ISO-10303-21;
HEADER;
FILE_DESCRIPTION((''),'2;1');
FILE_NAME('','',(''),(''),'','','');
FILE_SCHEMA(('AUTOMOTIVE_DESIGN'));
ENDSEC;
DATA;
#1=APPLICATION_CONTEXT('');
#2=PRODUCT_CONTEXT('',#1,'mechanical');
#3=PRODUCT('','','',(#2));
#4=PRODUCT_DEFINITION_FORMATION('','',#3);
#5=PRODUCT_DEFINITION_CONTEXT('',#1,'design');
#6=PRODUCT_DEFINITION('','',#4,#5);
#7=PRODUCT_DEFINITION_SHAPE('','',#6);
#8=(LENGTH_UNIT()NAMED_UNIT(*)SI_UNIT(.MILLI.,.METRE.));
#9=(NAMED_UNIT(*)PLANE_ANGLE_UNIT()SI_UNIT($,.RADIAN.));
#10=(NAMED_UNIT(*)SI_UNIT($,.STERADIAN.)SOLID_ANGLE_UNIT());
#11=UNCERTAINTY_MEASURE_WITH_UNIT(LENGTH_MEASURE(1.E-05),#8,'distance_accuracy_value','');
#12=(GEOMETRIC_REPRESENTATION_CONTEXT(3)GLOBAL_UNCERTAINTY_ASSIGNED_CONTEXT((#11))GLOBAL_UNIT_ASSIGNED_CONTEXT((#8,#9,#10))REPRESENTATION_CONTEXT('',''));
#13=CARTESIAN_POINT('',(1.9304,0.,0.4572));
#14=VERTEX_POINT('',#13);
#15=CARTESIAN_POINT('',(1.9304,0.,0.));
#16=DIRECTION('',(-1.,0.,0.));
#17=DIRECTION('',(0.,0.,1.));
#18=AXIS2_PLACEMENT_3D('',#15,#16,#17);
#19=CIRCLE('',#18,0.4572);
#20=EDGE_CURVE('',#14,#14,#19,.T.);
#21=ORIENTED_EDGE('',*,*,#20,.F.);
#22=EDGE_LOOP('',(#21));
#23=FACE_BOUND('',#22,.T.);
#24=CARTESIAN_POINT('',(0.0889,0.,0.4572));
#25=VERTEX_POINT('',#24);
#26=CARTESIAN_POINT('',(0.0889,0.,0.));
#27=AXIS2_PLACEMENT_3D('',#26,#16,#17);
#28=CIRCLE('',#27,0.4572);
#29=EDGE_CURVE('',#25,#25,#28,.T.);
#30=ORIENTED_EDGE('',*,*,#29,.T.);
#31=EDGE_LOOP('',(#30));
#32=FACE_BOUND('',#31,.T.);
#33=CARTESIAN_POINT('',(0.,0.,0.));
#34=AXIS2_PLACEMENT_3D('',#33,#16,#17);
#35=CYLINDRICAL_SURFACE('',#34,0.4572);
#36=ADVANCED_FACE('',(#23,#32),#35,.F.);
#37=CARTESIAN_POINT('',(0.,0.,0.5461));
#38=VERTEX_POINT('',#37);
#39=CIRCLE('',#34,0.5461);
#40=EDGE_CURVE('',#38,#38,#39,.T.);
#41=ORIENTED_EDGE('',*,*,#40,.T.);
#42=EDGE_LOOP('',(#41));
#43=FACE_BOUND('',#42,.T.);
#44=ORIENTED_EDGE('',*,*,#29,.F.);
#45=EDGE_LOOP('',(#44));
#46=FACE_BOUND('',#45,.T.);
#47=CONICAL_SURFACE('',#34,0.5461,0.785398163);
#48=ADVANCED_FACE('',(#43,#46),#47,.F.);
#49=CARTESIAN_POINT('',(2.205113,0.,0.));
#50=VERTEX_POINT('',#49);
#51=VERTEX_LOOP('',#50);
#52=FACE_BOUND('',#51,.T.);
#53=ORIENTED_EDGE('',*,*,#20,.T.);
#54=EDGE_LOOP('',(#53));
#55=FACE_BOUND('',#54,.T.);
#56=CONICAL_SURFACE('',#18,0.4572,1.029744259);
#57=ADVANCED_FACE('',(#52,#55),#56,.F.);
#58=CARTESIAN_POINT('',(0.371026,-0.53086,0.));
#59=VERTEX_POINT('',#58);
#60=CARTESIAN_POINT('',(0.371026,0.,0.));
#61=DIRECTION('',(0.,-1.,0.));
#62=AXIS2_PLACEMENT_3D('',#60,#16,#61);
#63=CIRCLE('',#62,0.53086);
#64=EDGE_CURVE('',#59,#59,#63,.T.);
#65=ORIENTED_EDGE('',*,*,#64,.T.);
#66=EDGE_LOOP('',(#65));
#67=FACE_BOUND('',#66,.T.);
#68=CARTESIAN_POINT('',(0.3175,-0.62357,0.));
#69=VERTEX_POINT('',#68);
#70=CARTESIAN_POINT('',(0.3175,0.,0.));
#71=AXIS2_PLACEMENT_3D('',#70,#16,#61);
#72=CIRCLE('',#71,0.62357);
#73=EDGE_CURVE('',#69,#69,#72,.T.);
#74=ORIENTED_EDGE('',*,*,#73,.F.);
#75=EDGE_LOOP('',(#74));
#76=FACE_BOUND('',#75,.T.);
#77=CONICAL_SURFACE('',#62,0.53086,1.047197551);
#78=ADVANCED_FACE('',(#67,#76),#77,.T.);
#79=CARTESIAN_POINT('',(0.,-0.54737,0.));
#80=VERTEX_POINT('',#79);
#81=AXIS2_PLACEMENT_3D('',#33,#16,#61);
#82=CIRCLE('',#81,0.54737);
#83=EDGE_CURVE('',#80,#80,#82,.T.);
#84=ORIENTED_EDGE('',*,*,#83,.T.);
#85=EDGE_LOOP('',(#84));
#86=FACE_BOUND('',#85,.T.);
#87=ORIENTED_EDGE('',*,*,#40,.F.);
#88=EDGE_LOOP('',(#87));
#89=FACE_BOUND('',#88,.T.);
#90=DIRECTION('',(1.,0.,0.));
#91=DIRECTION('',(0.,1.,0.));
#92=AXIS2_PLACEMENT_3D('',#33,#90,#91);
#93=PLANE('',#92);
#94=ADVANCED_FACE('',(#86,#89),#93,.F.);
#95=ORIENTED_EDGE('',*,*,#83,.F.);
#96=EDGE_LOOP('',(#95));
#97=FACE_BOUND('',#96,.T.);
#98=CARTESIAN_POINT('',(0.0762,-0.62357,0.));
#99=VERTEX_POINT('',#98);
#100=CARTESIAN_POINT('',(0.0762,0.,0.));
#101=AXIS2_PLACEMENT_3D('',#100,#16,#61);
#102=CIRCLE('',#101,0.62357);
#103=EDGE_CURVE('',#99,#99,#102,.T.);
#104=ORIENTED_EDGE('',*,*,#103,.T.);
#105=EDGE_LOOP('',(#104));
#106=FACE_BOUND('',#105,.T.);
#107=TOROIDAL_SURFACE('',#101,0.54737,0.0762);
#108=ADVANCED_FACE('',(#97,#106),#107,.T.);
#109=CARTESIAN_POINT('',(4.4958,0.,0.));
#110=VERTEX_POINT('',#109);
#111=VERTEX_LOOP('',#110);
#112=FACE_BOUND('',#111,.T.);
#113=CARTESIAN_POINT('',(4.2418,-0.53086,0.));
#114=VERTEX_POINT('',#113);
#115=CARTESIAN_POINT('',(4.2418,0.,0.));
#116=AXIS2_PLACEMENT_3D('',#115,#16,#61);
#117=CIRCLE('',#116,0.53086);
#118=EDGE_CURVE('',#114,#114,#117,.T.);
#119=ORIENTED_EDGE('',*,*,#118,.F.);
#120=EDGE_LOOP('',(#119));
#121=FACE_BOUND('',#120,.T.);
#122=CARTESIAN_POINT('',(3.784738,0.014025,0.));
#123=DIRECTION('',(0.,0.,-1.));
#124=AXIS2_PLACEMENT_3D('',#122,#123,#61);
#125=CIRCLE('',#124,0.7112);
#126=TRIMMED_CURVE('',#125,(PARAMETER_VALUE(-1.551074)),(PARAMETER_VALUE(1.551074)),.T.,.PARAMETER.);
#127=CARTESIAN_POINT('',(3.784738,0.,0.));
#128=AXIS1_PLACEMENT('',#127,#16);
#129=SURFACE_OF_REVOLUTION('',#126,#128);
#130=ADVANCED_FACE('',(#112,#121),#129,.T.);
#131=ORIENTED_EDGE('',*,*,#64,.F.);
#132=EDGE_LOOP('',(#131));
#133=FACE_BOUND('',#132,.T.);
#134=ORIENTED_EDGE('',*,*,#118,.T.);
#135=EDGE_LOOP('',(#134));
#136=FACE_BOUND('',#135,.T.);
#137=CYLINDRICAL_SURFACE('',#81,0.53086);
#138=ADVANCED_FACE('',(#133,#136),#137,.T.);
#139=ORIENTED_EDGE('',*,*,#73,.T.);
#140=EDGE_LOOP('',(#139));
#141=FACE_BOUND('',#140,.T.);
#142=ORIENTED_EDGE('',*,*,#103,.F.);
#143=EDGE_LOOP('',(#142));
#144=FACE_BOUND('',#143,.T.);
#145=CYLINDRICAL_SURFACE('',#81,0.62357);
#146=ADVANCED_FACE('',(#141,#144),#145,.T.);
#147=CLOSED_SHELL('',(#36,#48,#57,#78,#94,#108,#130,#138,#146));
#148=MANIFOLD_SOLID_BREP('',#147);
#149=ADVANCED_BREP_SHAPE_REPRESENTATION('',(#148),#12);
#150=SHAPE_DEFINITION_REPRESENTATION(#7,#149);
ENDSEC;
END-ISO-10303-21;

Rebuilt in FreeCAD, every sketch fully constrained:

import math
import FreeCAD as App
import Part
import Sketcher
Q = App.Units.Quantity

doc = App.newDocument("Part")
params = doc.addObject("Spreadsheet::Sheet", "Params")
for row, (alias, value) in enumerate([
    ("sketch1_radius", "0.028 in"),
    ("sketch1_radius2", "0.003 in"),
    ("sketch1_width", "0.177 in"),
    ("revolution_angle", "360 deg"),
    ("sketch2_diameter", "0.036 in"),
    ("hole_diameter", "0.036 in"),
    ("hole_depth", "0.076 in"),
    ("hole_csink_diameter", "0.043 in"),
], start=1):
    params.set(f"A{row}", alias)
    params.set(f"B{row}", "=" + value)
    params.setAlias(f"B{row}", alias)

body = doc.addObject("PartDesign::Body", "Body")

sketch1 = body.newObject("Sketcher::SketchObject", "Sketch")
sketch1.AttachmentSupport = (doc.getObject("XY_Plane"), [""])
sketch1.MapMode = "FlatFace"
sketch1.addGeometry([
    Part.LineSegment(App.Vector(0, 0.54737, 0), App.Vector(0, 0, 0)),
    Part.LineSegment(App.Vector(0, 0, 0), App.Vector(4.4958, 0, 0)),
    Part.ArcOfCircle(Part.Circle(App.Vector(3.784738, -0.014025, 0), App.Vector(0, 0, 1), 0.7112), math.radians(1.129986), math.radians(50.009344)),
    Part.LineSegment(App.Vector(4.2418, 0.53086, 0), App.Vector(0.371026, 0.53086, 0)),
    Part.LineSegment(App.Vector(0.371026, 0.53086, 0), App.Vector(0.3175, 0.62357, 0)),
    Part.LineSegment(App.Vector(0.3175, 0.62357, 0), App.Vector(0.0762, 0.62357, 0)),
    Part.ArcOfCircle(Part.Circle(App.Vector(0.0762, 0.54737, 0), App.Vector(0, 0, 1), 0.0762), math.radians(89.999999), math.radians(180.000001)),
], False)
sketch1.addConstraint([
    Sketcher.Constraint("Coincident", 0, 2, 1, 1),
    Sketcher.Constraint("Coincident", 1, 2, 2, 1),
    Sketcher.Constraint("Coincident", 2, 2, 3, 1),
    Sketcher.Constraint("Coincident", 3, 2, 4, 1),
    Sketcher.Constraint("Coincident", 4, 2, 5, 1),
    Sketcher.Constraint("Tangent", 5, 2, 6, 1),
    Sketcher.Constraint("Tangent", 6, 2, 0, 1),
    Sketcher.Constraint("Vertical", 0),
    Sketcher.Constraint("Horizontal", 1),
    Sketcher.Constraint("Horizontal", 3),
    Sketcher.Constraint("Horizontal", 5),
    Sketcher.Constraint("Coincident", 0, 2, -1, 1),
    Sketcher.Constraint("Angle", 4, Q("120 deg")),
    Sketcher.Constraint("Radius", 2, Q("0.028 in")),
    Sketcher.Constraint("Radius", 6, Q("0.003 in")),
    Sketcher.Constraint("DistanceX", 1, 1, 1, 2, Q("0.177 in")),
    Sketcher.Constraint("DistanceX", 2, 2, 1, 2, Q("0.01 in")),
    Sketcher.Constraint("DistanceX", 5, 2, 5, 1, Q("0.0095 in")),
    Sketcher.Constraint("DistanceY", -1, 1, 2, 2, Q("0.0209 in")),
    Sketcher.Constraint("DistanceY", 0, 2, 0, 1, Q("0.54737 mm")),
])
sketch1.setExpression("Constraints[13]", "Params.sketch1_radius")
sketch1.setExpression("Constraints[14]", "Params.sketch1_radius2")
sketch1.setExpression("Constraints[15]", "Params.sketch1_width")
revolution = body.newObject("PartDesign::Revolution", "Revolution")
revolution.Profile = sketch1
revolution.ReferenceAxis = (sketch1, ["H_Axis"])
revolution.setExpression("Angle", "Params.revolution_angle")

sketch2 = body.newObject("Sketcher::SketchObject", "Sketch001")
sketch2.AttachmentSupport = (doc.getObject("YZ_Plane"), [""])
sketch2.MapMode = "FlatFace"
sketch2.addGeometry(Part.Circle(App.Vector(0, 0, 0), App.Vector(0, 0, 1), 0.4572), False)
sketch2.addConstraint([
    Sketcher.Constraint("Coincident", 0, 3, -1, 1),
    Sketcher.Constraint("Diameter", 0, Q("0.036 in")),
])
sketch2.setExpression("Constraints[1]", "Params.sketch2_diameter")
doc.recompute()
hole = body.newObject("PartDesign::Hole", "Hole")
hole.Profile = sketch2
hole.ThreadType = "None"
hole.setExpression("Diameter", "Params.hole_diameter")
hole.DepthType = "Dimension"
hole.setExpression("Depth", "Params.hole_depth")
hole.DrillPoint = "Angled"
hole.DrillPointAngle = 118
hole.HoleCutType = "Countersink"
hole.setExpression("HoleCutDiameter", "Params.hole_csink_diameter")
hole.HoleCutCountersinkAngle = 90
hole.Reversed = True

doc.recompute()
